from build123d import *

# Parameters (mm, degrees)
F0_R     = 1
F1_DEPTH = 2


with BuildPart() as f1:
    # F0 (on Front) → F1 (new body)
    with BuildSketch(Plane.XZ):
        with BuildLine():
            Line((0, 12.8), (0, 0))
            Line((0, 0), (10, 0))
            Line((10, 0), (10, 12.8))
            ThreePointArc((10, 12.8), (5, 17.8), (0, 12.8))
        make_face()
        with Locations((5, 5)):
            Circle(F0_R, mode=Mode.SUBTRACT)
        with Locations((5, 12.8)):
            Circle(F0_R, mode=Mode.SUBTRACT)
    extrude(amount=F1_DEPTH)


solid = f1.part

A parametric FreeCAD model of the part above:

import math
import FreeCAD as App
import Part
import Sketcher

doc = App.newDocument("Part")
body = doc.addObject("PartDesign::Body", "Body")

# Sketch on XZ plane
sketch1 = body.newObject("Sketcher::SketchObject", "Sketch")
sketch1.AttachmentSupport = (doc.getObject("XZ_Plane"), [""])
sketch1.MapMode = "FlatFace"
sketch1.addGeometry([
    Part.LineSegment(App.Vector(0, 12.8, 0), App.Vector(0, 0, 0)),  # 0
    Part.LineSegment(App.Vector(0, 0, 0), App.Vector(10, 0, 0)),  # 1
    Part.LineSegment(App.Vector(10, 0, 0), App.Vector(10, 12.8, 0)),  # 2
    Part.ArcOfCircle(Part.Circle(App.Vector(5, 12.8, 0), App.Vector(0, 0, 1), 5), math.radians(0), math.radians(180)),  # 3
    Part.Circle(App.Vector(5, 5, 0), App.Vector(0, 0, 1), 1),  # 4
    Part.Circle(App.Vector(5, 12.8, 0), App.Vector(0, 0, 1), 1),  # 5
], False)
sketch1.addConstraint([
    Sketcher.Constraint("Coincident", 0, 2, 1, 1),
    Sketcher.Constraint("Coincident", 1, 2, 2, 1),
    Sketcher.Constraint("Tangent", 2, 2, 3, 1),
    Sketcher.Constraint("Tangent", 3, 2, 0, 1),
    Sketcher.Constraint("Vertical", 0),
    Sketcher.Constraint("Horizontal", 1),
    Sketcher.Constraint("Vertical", 2),
    Sketcher.Constraint("Coincident", 0, 2, -1, 1),
    Sketcher.Constraint("Coincident", 5, 3, 3, 3),
    Sketcher.Constraint("Equal", 4, 5),
    Sketcher.Constraint("Vertical", 3, 3, 4, 3),
    Sketcher.Constraint("Diameter", 4, 2.0),
    Sketcher.Constraint("Radius", 3, 5.0),
    Sketcher.Constraint("DistanceY", 0, 2, 0, 1, 12.8),
    Sketcher.Constraint("DistanceY", -1, 1, 4, 3, 5.0),
])
pad1 = body.newObject("PartDesign::Pad", "Pad")
pad1.Profile = sketch1
pad1.Length = 2

doc.recompute()
